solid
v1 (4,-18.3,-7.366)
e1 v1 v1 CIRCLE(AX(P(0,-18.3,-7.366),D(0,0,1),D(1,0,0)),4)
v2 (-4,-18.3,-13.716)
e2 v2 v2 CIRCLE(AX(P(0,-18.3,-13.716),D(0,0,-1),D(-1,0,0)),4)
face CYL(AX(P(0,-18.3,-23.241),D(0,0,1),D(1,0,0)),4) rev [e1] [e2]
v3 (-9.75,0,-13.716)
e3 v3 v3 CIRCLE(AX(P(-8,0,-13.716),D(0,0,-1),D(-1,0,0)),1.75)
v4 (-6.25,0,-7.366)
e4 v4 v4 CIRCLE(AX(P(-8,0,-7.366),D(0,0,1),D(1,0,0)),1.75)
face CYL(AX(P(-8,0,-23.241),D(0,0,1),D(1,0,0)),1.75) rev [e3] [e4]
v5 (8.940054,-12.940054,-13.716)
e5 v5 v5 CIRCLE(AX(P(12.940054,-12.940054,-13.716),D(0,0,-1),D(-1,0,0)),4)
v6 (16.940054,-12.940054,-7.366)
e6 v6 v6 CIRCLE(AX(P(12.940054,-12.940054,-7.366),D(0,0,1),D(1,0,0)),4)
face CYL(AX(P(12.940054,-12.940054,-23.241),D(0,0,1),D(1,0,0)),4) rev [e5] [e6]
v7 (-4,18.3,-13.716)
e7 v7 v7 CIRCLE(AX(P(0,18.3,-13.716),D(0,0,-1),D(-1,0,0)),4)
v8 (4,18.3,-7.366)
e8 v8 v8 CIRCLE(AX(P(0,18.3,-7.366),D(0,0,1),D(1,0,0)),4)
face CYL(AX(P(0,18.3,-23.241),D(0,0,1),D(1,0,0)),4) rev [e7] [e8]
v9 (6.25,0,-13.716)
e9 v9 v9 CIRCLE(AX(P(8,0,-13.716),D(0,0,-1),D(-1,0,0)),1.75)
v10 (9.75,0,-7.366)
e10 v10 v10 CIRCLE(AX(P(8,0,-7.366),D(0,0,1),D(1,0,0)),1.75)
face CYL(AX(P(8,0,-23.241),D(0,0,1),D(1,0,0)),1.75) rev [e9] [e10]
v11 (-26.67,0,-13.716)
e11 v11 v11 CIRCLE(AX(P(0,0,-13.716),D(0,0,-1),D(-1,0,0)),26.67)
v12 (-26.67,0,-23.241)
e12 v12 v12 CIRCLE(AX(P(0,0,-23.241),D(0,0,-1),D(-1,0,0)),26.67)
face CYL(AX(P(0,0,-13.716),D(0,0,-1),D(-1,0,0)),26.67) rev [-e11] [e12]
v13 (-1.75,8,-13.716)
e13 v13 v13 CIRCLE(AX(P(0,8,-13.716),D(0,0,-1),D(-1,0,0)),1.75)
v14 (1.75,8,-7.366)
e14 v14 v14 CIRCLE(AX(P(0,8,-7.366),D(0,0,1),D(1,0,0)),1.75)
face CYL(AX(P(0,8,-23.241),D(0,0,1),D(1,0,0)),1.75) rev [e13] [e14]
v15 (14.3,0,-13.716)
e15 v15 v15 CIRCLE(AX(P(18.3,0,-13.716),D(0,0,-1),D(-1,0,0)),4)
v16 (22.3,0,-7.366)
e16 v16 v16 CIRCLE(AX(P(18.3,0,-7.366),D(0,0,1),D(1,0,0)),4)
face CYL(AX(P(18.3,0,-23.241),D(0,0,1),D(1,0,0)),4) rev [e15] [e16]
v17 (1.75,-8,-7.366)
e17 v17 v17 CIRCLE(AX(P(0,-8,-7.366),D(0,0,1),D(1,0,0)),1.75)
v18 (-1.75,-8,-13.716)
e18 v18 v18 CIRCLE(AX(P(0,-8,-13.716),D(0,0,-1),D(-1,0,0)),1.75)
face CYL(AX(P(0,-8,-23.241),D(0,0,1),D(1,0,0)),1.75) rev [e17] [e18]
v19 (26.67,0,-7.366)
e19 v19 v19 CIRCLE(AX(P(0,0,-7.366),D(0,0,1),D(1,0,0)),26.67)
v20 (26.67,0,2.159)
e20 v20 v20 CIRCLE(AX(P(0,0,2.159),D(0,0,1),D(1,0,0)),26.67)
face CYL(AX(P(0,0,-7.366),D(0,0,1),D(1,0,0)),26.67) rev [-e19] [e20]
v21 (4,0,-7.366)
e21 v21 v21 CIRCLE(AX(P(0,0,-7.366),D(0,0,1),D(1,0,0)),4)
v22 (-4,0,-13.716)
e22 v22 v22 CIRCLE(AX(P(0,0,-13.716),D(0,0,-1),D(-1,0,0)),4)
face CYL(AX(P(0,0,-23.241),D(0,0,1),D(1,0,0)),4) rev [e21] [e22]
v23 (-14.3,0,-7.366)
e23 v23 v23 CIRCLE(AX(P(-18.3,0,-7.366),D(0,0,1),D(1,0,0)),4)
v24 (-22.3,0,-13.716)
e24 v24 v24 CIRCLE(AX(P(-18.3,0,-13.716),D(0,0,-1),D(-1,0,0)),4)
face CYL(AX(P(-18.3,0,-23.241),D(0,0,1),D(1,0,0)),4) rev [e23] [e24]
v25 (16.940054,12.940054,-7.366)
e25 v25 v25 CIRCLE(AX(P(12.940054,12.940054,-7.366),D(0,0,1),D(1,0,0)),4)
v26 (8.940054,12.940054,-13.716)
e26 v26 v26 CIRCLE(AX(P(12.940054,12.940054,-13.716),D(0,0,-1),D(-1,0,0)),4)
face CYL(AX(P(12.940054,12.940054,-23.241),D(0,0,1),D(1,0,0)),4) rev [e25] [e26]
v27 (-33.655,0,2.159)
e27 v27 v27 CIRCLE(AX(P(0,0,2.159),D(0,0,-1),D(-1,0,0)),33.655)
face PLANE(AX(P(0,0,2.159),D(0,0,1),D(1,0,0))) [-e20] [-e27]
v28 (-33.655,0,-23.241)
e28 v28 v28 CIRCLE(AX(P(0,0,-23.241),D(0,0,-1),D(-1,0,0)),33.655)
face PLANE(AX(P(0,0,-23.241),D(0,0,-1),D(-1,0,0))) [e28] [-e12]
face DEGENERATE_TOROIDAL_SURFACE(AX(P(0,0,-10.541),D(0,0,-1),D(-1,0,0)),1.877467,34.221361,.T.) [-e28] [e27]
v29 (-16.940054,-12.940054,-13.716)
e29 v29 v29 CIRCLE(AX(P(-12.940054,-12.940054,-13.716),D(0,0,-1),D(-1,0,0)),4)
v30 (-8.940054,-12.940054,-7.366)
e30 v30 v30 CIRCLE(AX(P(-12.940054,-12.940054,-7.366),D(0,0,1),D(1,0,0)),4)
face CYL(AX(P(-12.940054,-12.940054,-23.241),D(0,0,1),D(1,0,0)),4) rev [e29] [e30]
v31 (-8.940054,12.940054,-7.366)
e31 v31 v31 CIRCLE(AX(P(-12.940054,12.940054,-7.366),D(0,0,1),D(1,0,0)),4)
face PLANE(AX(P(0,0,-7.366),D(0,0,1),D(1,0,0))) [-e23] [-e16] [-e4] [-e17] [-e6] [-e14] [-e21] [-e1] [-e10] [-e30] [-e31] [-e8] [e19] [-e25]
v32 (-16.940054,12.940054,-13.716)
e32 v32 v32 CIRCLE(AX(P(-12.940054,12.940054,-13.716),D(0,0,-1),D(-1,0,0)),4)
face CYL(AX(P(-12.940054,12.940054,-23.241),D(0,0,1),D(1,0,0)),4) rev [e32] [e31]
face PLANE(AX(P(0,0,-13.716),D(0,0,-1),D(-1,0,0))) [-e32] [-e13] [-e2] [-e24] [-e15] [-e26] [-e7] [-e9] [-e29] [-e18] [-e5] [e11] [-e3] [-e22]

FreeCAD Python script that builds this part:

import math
import FreeCAD as App
import Part
import Sketcher

V = App.Vector
Q = App.Units.Quantity

doc = App.newDocument("Part")
body = doc.addObject("PartDesign::Body", "Body")

# Sketch on XY plane
sketch1 = body.newObject("Sketcher::SketchObject", "Sketch")
sketch1.AttachmentSupport = (doc.getObject("XY_Plane"), [""])
sketch1.MapMode = "FlatFace"
sketch1.addGeometry(Part.Circle(V(0, 0, 0), V(0, 0, 1), 31.75), False)
sketch1.addConstraint([
    Sketcher.Constraint("Coincident", 0, 3, -1, 1),
    Sketcher.Constraint("Diameter", 0, Q("2.5 in")),
])
pad1 = body.newObject("PartDesign::Pad", "Pad")
pad1.Profile = sketch1
pad1.Length = Q("0.83 in")
pad1.Reversed = True

# Sketch on XY plane
sketch2 = body.newObject("Sketcher::SketchObject", "Sketch001")
sketch2.AttachmentSupport = (doc.getObject("XY_Plane"), [""])
sketch2.MapMode = "FlatFace"
sketch2.addGeometry(Part.Circle(V(0, 0, 0), V(0, 0, 1), 26.67), False)
sketch2.addConstraint([
    Sketcher.Constraint("Coincident", 0, 3, -1, 1),
    Sketcher.Constraint("Diameter", 0, Q("2.1 in")),
])
pocket1 = body.newObject("PartDesign::Pocket", "Pocket")
pocket1.Profile = sketch2
pocket1.Length = Q("0.29 in")

# Sketch on XY plane
sketch3 = body.newObject("Sketcher::SketchObject", "Sketch002")
sketch3.AttachmentSupport = (doc.getObject("XY_Plane"), [""])
sketch3.MapMode = "FlatFace"
sketch3.AttachmentOffset = App.Placement(V(0, 0, -0.83 * 25.4), App.Rotation())
sketch3.addGeometry(Part.Circle(V(0, 0, 0), V(0, 0, 1), 26.67), False)
sketch3.addConstraint([
    Sketcher.Constraint("Coincident", 0, 3, -1, 1),
    Sketcher.Constraint("Diameter", 0, Q("2.1 in")),
])
pocket2 = body.newObject("PartDesign::Pocket", "Pocket001")
pocket2.Profile = sketch3
pocket2.Length = Q("0.29 in")
pocket2.Reversed = True

# Sketch on XY plane
sketch4 = body.newObject("Sketcher::SketchObject", "Sketch003")
sketch4.AttachmentSupport = (doc.getObject("XY_Plane"), [""])
sketch4.MapMode = "FlatFace"
sketch4.addGeometry(Part.Circle(V(0, 0, 0), V(0, 0, 1), 33.655), False)
sketch4.addConstraint([
    Sketcher.Constraint("Coincident", 0, 3, -1, 1),
    Sketcher.Constraint("Diameter", 0, Q("2.65 in")),
])
pad2 = body.newObject("PartDesign::Pad", "Pad001")
pad2.Profile = sketch4
pad2.Length = Q("0.085 in")

# Sketch on XY plane
sketch5 = body.newObject("Sketcher::SketchObject", "Sketch004")
sketch5.AttachmentSupport = (doc.getObject("XY_Plane"), [""])
sketch5.MapMode = "FlatFace"
sketch5.AttachmentOffset = App.Placement(V(0, 0, 0.085 * 25.4), App.Rotation())
sketch5.addGeometry(Part.Circle(V(0, 0, 0), V(0, 0, 1), 26.67), False)
sketch5.addConstraint([
    Sketcher.Constraint("Coincident", 0, 3, -1, 1),
    Sketcher.Constraint("Diameter", 0, Q("2.1 in")),
])
pocket3 = body.newObject("PartDesign::Pocket", "Pocket002")
pocket3.Profile = sketch5
pocket3.Type = "UpToFirst"

# Sketch on XY plane
sketch6 = body.newObject("Sketcher::SketchObject", "Sketch005")
sketch6.AttachmentSupport = (doc.getObject("XY_Plane"), [""])
sketch6.MapMode = "FlatFace"
sketch6.AttachmentOffset = App.Placement(V(0, 0, -0.83 * 25.4), App.Rotation())
sketch6.addGeometry(Part.Circle(V(0, 0, 0), V(0, 0, 1), 33.655), False)
sketch6.addConstraint([
    Sketcher.Constraint("Coincident", 0, 3, -1, 1),
    Sketcher.Constraint("Diameter", 0, Q("2.65 in")),
])
pad3 = body.newObject("PartDesign::Pad", "Pad002")
pad3.Profile = sketch6
pad3.Length = Q("0.085 in")
pad3.Reversed = True

# Sketch on XY plane
sketch7 = body.newObject("Sketcher::SketchObject", "Sketch006")
sketch7.AttachmentSupport = (doc.getObject("XY_Plane"), [""])
sketch7.MapMode = "FlatFace"
sketch7.AttachmentOffset = App.Placement(V(0, 0, -0.915 * 25.4), App.Rotation())
sketch7.addGeometry(Part.Circle(V(0, 0, 0), V(0, 0, 1), 26.67), False)
sketch7.addConstraint([
    Sketcher.Constraint("Coincident", 0, 3, -1, 1),
    Sketcher.Constraint("Diameter", 0, Q("2.1 in")),
])
pocket4 = body.newObject("PartDesign::Pocket", "Pocket003")
pocket4.Profile = sketch7
pocket4.Type = "UpToFirst"
pocket4.Reversed = True

# Sketch on YZ plane
sketch8 = body.newObject("Sketcher::SketchObject", "Sketch007")
sketch8.AttachmentSupport = (doc.getObject("YZ_Plane"), [""])
sketch8.MapMode = "FlatFace"
sketch8.addGeometry([
    Part.LineSegment(V(33.655, 2.159, 0), V(33.655, 0, 0)),  # 0
    Part.LineSegment(V(33.655, 0, 0), V(31.75, 0, 0)),  # 1
    Part.LineSegment(V(31.75, 0, 0), V(31.75, -21.082, 0)),  # 2
    Part.LineSegment(V(31.75, -21.082, 0), V(33.655, -21.082, 0)),  # 3
    Part.LineSegment(V(33.655, -21.082, 0), V(33.655, -23.241, 0)),  # 4
    Part.ArcOfCircle(Part.Circle(V(1.877467, -10.541, 0), V(0, 0, 1), 34.221361), math.radians(-21.78429), math.radians(21.78429)),  # 5
], False)
sketch8.addConstraint([
    Sketcher.Constraint("Coincident", 0, 2, 1, 1),
    Sketcher.Constraint("Coincident", 1, 2, 2, 1),
    Sketcher.Constraint("Coincident", 2, 2, 3, 1),
    Sketcher.Constraint("Coincident", 3, 2, 4, 1),
    Sketcher.Constraint("Coincident", 4, 2, 5, 1),
    Sketcher.Constraint("Coincident", 5, 2, 0, 1),
    Sketcher.Constraint("Vertical", 0),
    Sketcher.Constraint("Horizontal", 1),
    Sketcher.Constraint("Vertical", 2),
    Sketcher.Constraint("Horizontal", 3),
    Sketcher.Constraint("Vertical", 4),
    Sketcher.Constraint("PointOnObject", 0, 2, -1),
    Sketcher.Constraint("Vertical", 0, 2, 3, 2),
    Sketcher.Constraint("Equal", 0, 4),
    Sketcher.Constraint("DistanceY", 4, 2, 5, 2, Q("1 in")),
    Sketcher.Constraint("DistanceY", 2, 2, 2, 1, Q("0.83 in")),
    Sketcher.Constraint("DistanceX", 1, 2, 1, 1, Q("0.075 in")),
    Sketcher.Constraint("DistanceX", -1, 1, 1, 2, Q("1.25 in")),
    Sketcher.Constraint("Radius", 5, 34.221361),
])

# Sketch on XY plane
sketch9 = body.newObject("Sketcher::SketchObject", "Sketch008")
sketch9.AttachmentSupport = (doc.getObject("XY_Plane"), [""])
sketch9.MapMode = "FlatFace"
sketch9.AttachmentOffset = App.Placement(V(0, 0, 0.085 * 25.4), App.Rotation())
sketch9.addGeometry([
    Part.ArcOfCircle(Part.Circle(V(0, 0, 0), V(0, 0, 1), 33.655), math.radians(0), math.radians(90)),
    Part.ArcOfCircle(Part.Circle(V(0, 0, 0), V(0, 0, 1), 33.655), math.radians(90), math.radians(180)),
    Part.ArcOfCircle(Part.Circle(V(0, 0, 0), V(0, 0, 1), 33.655), math.radians(180), math.radians(270)),
    Part.ArcOfCircle(Part.Circle(V(0, 0, 0), V(0, 0, 1), 33.655), math.radians(-90), math.radians(0)),
], False)
sketch9.addConstraint([
    Sketcher.Constraint("Tangent", 0, 2, 1, 1),
    Sketcher.Constraint("Tangent", 1, 2, 2, 1),
    Sketcher.Constraint("Tangent", 2, 2, 3, 1),
    Sketcher.Constraint("Tangent", 3, 2, 0, 1),
    Sketcher.Constraint("Coincident", 0, 3, -1, 1),
    Sketcher.Constraint("Equal", 0, 1),
    Sketcher.Constraint("PointOnObject", 0, 2, -2),
    Sketcher.Constraint("PointOnObject", 1, 2, -1),
    Sketcher.Constraint("PointOnObject", 2, 2, -2),
    Sketcher.Constraint("PointOnObject", 3, 2, -1),
    Sketcher.Constraint("Radius", 0, Q("1.325 in")),
])
doc.recompute()

additivepipe = body.newObject("PartDesign::AdditivePipe", "AdditivePipe")
additivepipe.Profile = sketch8
additivepipe.Spine = (sketch9, ["Edge1", "Edge2", "Edge3", "Edge4"])

# Sketch on XY plane
sketch10 = body.newObject("Sketcher::SketchObject", "Sketch009")
sketch10.AttachmentSupport = (doc.getObject("XY_Plane"), [""])
sketch10.MapMode = "FlatFace"
sketch10.AttachmentOffset = App.Placement(V(0, 0, -0.29 * 25.4), App.Rotation())
sketch10.addGeometry([
    Part.Circle(V(0, 0, 0), V(0, 0, 1), 4),  # 0
    Part.Circle(V(0, 8, 0), V(0, 0, 1), 1.75),  # 1
    Part.Circle(V(8, 0, 0), V(0, 0, 1), 1.75),  # 2
    Part.Circle(V(0, -8, 0), V(0, 0, 1), 1.75),  # 3
    Part.Circle(V(-8, 0, 0), V(0, 0, 1), 1.75),  # 4
], False)
sketch10.addConstraint([
    Sketcher.Constraint("Coincident", 0, 3, -1, 1),
    Sketcher.Constraint("Equal", 1, 2),
    Sketcher.Constraint("Equal", 2, 3),
    Sketcher.Constraint("Equal", 3, 4),
    Sketcher.Constraint("Symmetric", 1, 3, 3, 3, -1, 1),
    Sketcher.Constraint("Symmetric", 2, 3, 4, 3, -1, 1),
    Sketcher.Constraint("PointOnObject", 1, 3, -2),
    Sketcher.Constraint("PointOnObject", 2, 3, -1),
    Sketcher.Constraint("Diameter", 0, 8.0),
    Sketcher.Constraint("Diameter", 1, 3.5),
    Sketcher.Constraint("DistanceY", -1, 1, 1, 3, 8.0),
    Sketcher.Constraint("DistanceX", -1, 1, 2, 3, 8.0),
])
pocket5 = body.newObject("PartDesign::Pocket", "Pocket004")
pocket5.Profile = sketch10
pocket5.Type = "ThroughAll"

# Sketch on XY plane
sketch11 = body.newObject("Sketcher::SketchObject", "Sketch010")
sketch11.AttachmentSupport = (doc.getObject("XY_Plane"), [""])
sketch11.MapMode = "FlatFace"
sketch11.AttachmentOffset = App.Placement(V(0, 0, -0.29 * 25.4), App.Rotation())
sketch11.addGeometry([
    Part.Circle(V(0, 18.3, 0), V(0, 0, 1), 4),
    Part.Circle(V(18.3, 0, 0), V(0, 0, 1), 4),
    Part.Circle(V(0, -18.3, 0), V(0, 0, 1), 4),
    Part.Circle(V(-18.3, 0, 0), V(0, 0, 1), 4),
], False)
sketch11.addConstraint([
    Sketcher.Constraint("Equal", 0, 1),
    Sketcher.Constraint("Equal", 1, 2),
    Sketcher.Constraint("Equal", 2, 3),
    Sketcher.Constraint("Symmetric", 0, 3, 2, 3, -1, 1),
    Sketcher.Constraint("Symmetric", 1, 3, 3, 3, -1, 1),
    Sketcher.Constraint("PointOnObject", 0, 3, -2),
    Sketcher.Constraint("PointOnObject", 1, 3, -1),
    Sketcher.Constraint("Diameter", 0, 8.0),
    Sketcher.Constraint("DistanceY", -1, 1, 0, 3, 18.3),
    Sketcher.Constraint("DistanceX", -1, 1, 1, 3, 18.3),
])
pocket6 = body.newObject("PartDesign::Pocket", "Pocket005")
pocket6.Profile = sketch11
pocket6.Type = "ThroughAll"

# Sketch on XY plane
sketch12 = body.newObject("Sketcher::SketchObject", "Sketch011")
sketch12.AttachmentSupport = (doc.getObject("XY_Plane"), [""])
sketch12.MapMode = "FlatFace"
sketch12.AttachmentOffset = App.Placement(V(0, 0, -0.29 * 25.4), App.Rotation())
sketch12.addGeometry([
    Part.Circle(V(12.940054, 12.940054, 0), V(0, 0, 1), 4),
    Part.Circle(V(12.940054, -12.940054, 0), V(0, 0, 1), 4),
    Part.Circle(V(-12.940054, -12.940054, 0), V(0, 0, 1), 4),
    Part.Circle(V(-12.940054, 12.940054, 0), V(0, 0, 1), 4),
], False)
sketch12.addConstraint([
    Sketcher.Constraint("Equal", 0, 1),
    Sketcher.Constraint("Equal", 1, 2),
    Sketcher.Constraint("Equal", 2, 3),
    Sketcher.Constraint("Symmetric", 0, 3, 2, 3, -1, 1),
    Sketcher.Constraint("Symmetric", 1, 3, 3, 3, -1, 1),
    Sketcher.Constraint("Symmetric", 1, 3, 2, 3, -2),
    Sketcher.Constraint("Diameter", 0, 8.0),
    Sketcher.Constraint("DistanceY", 1, 3, 0, 3, 25.880108),
    Sketcher.Constraint("DistanceX", 2, 3, 1, 3, 25.880108),
])
pocket7 = body.newObject("PartDesign::Pocket", "Pocket006")
pocket7.Profile = sketch12
pocket7.Type = "ThroughAll"

doc.recompute()
